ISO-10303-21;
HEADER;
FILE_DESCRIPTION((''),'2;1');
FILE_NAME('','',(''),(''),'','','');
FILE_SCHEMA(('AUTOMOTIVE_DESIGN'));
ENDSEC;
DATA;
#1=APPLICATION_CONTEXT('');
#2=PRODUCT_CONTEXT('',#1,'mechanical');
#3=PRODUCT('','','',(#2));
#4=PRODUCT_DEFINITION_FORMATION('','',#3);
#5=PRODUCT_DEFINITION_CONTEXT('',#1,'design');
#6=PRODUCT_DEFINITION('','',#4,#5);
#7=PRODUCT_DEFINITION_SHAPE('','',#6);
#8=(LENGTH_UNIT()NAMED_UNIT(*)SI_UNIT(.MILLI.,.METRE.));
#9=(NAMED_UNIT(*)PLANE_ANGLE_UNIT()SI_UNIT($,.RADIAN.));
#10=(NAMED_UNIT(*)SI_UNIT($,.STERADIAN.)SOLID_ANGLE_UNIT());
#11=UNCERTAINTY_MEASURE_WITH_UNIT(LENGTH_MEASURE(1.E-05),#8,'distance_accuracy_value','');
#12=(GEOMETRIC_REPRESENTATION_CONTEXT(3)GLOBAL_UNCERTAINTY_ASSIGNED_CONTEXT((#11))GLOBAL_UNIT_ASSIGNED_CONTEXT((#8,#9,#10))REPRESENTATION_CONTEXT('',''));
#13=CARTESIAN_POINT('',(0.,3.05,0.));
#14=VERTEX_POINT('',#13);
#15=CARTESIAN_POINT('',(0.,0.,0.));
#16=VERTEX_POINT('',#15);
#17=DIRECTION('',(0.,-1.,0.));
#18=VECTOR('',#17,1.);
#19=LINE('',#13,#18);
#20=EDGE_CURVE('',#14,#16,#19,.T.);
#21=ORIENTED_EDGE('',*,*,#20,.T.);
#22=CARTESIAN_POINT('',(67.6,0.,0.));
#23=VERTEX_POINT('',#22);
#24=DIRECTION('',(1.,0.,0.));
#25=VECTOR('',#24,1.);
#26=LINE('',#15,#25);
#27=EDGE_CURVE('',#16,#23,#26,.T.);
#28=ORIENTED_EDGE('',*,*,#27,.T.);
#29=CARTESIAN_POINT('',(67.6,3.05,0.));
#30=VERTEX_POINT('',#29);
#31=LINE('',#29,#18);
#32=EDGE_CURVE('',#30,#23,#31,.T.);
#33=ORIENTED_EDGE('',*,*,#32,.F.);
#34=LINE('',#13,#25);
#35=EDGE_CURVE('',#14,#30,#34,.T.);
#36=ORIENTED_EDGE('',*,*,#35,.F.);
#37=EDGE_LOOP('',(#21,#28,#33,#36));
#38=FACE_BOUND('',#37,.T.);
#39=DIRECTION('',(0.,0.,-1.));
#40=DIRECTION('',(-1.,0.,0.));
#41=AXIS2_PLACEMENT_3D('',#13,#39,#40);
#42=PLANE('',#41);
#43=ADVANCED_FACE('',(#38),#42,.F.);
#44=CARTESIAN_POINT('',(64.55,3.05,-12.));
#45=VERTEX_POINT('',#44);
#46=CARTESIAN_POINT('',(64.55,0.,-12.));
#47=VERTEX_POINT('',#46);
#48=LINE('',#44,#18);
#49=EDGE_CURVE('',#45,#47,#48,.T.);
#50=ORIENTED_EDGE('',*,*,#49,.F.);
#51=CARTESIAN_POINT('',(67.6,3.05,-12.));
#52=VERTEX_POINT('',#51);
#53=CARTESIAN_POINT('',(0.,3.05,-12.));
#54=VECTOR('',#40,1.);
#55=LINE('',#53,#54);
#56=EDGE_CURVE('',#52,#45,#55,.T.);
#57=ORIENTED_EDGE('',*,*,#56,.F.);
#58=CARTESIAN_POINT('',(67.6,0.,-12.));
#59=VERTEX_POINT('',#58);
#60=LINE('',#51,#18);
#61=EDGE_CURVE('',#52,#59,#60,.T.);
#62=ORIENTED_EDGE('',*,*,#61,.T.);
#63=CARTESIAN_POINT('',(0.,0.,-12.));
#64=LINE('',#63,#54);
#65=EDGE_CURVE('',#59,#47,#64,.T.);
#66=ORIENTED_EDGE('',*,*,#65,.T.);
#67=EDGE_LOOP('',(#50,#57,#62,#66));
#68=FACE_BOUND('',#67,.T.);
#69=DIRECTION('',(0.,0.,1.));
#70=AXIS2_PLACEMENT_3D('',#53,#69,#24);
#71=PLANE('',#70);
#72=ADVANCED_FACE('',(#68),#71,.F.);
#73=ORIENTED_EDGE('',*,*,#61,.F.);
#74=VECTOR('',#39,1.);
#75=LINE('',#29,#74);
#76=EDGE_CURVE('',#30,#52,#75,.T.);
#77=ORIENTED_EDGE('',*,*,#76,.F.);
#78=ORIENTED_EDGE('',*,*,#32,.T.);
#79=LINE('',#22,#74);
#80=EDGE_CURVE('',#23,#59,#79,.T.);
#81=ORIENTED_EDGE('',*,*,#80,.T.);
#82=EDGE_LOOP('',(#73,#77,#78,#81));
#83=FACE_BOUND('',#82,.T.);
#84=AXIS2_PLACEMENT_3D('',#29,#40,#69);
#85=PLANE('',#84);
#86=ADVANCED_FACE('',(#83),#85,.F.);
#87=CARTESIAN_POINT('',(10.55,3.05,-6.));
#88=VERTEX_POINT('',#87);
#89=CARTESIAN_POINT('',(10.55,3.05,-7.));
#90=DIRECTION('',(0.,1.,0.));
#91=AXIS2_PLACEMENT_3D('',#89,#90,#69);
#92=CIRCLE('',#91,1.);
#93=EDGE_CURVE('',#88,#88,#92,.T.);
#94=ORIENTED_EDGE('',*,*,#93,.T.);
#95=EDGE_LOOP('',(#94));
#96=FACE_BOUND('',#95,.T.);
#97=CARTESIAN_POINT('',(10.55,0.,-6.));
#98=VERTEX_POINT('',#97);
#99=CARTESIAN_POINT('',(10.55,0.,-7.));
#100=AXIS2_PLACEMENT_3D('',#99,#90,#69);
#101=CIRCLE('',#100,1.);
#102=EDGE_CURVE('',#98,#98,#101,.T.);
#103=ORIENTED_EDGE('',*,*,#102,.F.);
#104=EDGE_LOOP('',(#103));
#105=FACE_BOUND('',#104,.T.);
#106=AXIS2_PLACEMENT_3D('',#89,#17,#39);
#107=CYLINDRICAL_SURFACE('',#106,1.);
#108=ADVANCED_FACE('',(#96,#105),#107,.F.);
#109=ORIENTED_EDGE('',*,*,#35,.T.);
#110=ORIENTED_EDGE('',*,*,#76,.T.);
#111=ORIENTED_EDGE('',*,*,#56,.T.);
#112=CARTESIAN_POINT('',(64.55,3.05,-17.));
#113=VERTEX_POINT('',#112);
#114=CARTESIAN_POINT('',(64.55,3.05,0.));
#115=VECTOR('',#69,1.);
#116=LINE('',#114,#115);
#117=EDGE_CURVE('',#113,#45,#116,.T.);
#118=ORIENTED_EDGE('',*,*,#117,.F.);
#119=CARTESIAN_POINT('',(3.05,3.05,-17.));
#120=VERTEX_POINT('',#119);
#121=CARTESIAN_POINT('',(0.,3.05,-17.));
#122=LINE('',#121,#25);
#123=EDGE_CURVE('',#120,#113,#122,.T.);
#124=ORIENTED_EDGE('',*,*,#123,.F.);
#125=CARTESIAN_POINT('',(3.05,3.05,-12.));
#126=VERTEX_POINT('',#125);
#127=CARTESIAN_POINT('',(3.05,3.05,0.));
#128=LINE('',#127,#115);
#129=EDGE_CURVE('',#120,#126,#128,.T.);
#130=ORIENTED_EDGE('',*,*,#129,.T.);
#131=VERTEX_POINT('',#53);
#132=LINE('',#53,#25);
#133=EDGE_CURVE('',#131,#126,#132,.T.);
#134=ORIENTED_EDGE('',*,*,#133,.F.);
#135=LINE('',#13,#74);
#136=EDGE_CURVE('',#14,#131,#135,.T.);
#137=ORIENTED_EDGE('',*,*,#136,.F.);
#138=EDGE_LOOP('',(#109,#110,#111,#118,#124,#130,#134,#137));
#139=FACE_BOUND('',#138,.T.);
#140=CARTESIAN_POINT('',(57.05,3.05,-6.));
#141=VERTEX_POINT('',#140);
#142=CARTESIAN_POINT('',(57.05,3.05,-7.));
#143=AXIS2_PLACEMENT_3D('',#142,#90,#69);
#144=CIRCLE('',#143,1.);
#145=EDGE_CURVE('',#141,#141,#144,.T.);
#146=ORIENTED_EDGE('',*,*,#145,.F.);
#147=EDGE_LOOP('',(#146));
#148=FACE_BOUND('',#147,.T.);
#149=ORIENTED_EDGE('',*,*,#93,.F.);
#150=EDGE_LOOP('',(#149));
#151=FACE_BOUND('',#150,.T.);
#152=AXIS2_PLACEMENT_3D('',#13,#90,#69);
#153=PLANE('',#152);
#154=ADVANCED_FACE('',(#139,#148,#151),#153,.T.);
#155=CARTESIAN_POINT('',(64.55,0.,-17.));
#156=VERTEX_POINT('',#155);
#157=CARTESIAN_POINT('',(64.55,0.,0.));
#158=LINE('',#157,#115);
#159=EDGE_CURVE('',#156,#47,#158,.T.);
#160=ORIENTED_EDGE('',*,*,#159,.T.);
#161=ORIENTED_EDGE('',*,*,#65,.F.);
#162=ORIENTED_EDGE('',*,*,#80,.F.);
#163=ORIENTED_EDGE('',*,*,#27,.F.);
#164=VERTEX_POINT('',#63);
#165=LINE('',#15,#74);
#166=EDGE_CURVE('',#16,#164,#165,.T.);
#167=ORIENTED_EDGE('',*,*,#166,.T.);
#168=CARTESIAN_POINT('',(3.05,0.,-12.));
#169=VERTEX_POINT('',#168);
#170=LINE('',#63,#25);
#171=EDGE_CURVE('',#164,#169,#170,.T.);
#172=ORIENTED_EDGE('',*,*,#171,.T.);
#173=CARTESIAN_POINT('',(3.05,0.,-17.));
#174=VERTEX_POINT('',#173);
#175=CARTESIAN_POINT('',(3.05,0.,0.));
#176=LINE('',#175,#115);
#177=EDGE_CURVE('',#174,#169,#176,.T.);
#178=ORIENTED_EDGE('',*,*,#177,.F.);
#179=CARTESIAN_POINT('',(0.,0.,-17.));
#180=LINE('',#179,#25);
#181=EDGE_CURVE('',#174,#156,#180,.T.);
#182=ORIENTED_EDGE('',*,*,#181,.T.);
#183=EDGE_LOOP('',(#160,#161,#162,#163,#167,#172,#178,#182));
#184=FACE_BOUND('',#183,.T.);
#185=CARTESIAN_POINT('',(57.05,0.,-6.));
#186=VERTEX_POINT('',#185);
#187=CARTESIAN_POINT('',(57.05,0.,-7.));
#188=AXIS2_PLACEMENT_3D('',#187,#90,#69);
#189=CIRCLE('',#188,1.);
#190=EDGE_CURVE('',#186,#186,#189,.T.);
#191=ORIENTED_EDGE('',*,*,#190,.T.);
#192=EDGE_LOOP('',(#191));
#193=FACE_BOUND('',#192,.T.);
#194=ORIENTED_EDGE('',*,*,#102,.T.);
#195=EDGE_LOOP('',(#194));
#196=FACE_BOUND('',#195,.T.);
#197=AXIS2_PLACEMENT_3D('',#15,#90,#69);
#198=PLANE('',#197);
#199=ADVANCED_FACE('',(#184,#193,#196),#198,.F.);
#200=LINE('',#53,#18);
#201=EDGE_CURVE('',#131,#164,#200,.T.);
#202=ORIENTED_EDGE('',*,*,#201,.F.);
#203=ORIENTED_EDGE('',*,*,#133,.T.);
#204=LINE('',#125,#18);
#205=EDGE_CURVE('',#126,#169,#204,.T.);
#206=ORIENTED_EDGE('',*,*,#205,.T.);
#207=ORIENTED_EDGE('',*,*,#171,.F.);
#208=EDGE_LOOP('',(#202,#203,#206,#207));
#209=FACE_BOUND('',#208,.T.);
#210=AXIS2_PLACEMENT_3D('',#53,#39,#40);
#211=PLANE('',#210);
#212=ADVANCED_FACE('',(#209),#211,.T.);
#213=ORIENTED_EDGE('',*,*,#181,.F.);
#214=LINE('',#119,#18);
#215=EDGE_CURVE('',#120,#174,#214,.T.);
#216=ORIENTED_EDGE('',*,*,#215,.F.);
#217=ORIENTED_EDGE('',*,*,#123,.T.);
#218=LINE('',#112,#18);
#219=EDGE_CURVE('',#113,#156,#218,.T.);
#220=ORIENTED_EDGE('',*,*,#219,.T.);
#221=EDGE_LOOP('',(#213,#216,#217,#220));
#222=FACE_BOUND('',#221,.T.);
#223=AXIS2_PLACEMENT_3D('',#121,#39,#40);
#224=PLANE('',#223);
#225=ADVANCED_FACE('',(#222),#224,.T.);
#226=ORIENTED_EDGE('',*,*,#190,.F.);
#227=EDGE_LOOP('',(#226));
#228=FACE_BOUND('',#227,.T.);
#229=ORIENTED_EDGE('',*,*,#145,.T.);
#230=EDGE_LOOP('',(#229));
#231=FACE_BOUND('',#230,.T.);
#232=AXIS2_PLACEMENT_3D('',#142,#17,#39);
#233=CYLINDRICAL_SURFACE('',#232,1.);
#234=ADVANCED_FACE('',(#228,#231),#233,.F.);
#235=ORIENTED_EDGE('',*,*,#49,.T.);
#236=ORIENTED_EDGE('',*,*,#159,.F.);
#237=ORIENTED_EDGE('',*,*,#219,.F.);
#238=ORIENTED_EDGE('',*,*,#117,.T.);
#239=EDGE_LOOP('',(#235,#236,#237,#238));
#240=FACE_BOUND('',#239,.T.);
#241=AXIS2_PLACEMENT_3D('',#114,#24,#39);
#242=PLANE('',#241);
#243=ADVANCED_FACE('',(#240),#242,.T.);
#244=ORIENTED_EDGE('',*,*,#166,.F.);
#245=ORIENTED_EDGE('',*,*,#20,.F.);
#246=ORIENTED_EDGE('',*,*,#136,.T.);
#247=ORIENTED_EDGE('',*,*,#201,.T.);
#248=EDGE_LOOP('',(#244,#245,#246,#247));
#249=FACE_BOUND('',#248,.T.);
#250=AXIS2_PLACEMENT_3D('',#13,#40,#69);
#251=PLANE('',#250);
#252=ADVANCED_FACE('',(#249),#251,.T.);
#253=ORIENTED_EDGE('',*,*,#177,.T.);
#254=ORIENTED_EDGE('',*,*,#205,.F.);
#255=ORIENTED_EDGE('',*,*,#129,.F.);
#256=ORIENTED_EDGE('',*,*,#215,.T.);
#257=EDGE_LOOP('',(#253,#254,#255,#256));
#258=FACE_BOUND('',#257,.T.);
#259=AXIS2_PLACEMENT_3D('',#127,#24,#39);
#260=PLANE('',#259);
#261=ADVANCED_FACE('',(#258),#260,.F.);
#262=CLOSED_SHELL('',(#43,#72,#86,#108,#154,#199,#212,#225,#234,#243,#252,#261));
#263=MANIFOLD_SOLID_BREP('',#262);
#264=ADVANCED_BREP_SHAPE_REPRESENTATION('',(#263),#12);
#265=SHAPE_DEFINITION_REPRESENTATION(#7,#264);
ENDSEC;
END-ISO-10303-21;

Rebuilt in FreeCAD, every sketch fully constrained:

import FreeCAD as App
import Part
import Sketcher

V = App.Vector


def add_polygon(sketch, points):
    """Adds a closed chain of lines whose ends are joined by coincident constraints."""
    first, n = sketch.GeometryCount, len(points)
    for a, b in zip(points, points[1:] + points[:1]):
        sketch.addGeometry(Part.LineSegment(App.Vector(*a, 0), App.Vector(*b, 0)), False)
    for i in range(n):
        sketch.addConstraint(Sketcher.Constraint("Coincident", first + i, 2, first + (i + 1) % n, 1))

doc = App.newDocument("Part")
body = doc.addObject("PartDesign::Body", "Body")

sketch1 = body.newObject("Sketcher::SketchObject", "Sketch")
sketch1.AttachmentSupport = (doc.getObject("XZ_Plane"), [""])
sketch1.MapMode = "FlatFace"
add_polygon(sketch1, [(0, 0), (67.6, 0), (67.6, -12), (64.5, -12), (64.5, -17), (3, -17), (3, -12), (0, -12)])
sketch1.addGeometry(Part.Circle(V(10.6, -7, 0), V(0, 0, 1), 1), False)
sketch1.addGeometry(Part.Circle(V(57, -7, 0), V(0, 0, 1), 1), False)
sketch1.addConstraint([
    Sketcher.Constraint("Horizontal", 0),
    Sketcher.Constraint("Vertical", 1),
    Sketcher.Constraint("Horizontal", 2),
    Sketcher.Constraint("Vertical", 3),
    Sketcher.Constraint("Horizontal", 4),
    Sketcher.Constraint("Vertical", 5),
    Sketcher.Constraint("Horizontal", 6),
    Sketcher.Constraint("Vertical", 7),
    Sketcher.Constraint("Coincident", 7, 2, -1, 1),
    Sketcher.Constraint("Equal", 8, 9),
    Sketcher.Constraint("Horizontal", 8, 3, 9, 3),
    Sketcher.Constraint("Horizontal", 2, 2, 5, 2),
    Sketcher.Constraint("Equal", 2, 6),
    Sketcher.Constraint("Diameter", 8, 2.0),
    Sketcher.Constraint("DistanceY", 1, 2, 1, 1, 12.0),
    Sketcher.Constraint("DistanceY", 3, 2, 3, 1, 5.0),
    Sketcher.Constraint("DistanceX", 0, 1, 0, 2, 67.6),
    Sketcher.Constraint("DistanceX", 4, 2, 4, 1, 61.5),
    Sketcher.Constraint("DistanceY", 8, 3, -1, 1, 7.0),
    Sketcher.Constraint("DistanceX", 8, 3, 2, 2, 54.0),
    Sketcher.Constraint("DistanceX", 4, 2, 9, 3, 54.0),
])
pad1 = body.newObject("PartDesign::Pad", "Pad")
pad1.Profile = sketch1
pad1.Length = 3.05
pad1.Reversed = True

doc.recompute()
